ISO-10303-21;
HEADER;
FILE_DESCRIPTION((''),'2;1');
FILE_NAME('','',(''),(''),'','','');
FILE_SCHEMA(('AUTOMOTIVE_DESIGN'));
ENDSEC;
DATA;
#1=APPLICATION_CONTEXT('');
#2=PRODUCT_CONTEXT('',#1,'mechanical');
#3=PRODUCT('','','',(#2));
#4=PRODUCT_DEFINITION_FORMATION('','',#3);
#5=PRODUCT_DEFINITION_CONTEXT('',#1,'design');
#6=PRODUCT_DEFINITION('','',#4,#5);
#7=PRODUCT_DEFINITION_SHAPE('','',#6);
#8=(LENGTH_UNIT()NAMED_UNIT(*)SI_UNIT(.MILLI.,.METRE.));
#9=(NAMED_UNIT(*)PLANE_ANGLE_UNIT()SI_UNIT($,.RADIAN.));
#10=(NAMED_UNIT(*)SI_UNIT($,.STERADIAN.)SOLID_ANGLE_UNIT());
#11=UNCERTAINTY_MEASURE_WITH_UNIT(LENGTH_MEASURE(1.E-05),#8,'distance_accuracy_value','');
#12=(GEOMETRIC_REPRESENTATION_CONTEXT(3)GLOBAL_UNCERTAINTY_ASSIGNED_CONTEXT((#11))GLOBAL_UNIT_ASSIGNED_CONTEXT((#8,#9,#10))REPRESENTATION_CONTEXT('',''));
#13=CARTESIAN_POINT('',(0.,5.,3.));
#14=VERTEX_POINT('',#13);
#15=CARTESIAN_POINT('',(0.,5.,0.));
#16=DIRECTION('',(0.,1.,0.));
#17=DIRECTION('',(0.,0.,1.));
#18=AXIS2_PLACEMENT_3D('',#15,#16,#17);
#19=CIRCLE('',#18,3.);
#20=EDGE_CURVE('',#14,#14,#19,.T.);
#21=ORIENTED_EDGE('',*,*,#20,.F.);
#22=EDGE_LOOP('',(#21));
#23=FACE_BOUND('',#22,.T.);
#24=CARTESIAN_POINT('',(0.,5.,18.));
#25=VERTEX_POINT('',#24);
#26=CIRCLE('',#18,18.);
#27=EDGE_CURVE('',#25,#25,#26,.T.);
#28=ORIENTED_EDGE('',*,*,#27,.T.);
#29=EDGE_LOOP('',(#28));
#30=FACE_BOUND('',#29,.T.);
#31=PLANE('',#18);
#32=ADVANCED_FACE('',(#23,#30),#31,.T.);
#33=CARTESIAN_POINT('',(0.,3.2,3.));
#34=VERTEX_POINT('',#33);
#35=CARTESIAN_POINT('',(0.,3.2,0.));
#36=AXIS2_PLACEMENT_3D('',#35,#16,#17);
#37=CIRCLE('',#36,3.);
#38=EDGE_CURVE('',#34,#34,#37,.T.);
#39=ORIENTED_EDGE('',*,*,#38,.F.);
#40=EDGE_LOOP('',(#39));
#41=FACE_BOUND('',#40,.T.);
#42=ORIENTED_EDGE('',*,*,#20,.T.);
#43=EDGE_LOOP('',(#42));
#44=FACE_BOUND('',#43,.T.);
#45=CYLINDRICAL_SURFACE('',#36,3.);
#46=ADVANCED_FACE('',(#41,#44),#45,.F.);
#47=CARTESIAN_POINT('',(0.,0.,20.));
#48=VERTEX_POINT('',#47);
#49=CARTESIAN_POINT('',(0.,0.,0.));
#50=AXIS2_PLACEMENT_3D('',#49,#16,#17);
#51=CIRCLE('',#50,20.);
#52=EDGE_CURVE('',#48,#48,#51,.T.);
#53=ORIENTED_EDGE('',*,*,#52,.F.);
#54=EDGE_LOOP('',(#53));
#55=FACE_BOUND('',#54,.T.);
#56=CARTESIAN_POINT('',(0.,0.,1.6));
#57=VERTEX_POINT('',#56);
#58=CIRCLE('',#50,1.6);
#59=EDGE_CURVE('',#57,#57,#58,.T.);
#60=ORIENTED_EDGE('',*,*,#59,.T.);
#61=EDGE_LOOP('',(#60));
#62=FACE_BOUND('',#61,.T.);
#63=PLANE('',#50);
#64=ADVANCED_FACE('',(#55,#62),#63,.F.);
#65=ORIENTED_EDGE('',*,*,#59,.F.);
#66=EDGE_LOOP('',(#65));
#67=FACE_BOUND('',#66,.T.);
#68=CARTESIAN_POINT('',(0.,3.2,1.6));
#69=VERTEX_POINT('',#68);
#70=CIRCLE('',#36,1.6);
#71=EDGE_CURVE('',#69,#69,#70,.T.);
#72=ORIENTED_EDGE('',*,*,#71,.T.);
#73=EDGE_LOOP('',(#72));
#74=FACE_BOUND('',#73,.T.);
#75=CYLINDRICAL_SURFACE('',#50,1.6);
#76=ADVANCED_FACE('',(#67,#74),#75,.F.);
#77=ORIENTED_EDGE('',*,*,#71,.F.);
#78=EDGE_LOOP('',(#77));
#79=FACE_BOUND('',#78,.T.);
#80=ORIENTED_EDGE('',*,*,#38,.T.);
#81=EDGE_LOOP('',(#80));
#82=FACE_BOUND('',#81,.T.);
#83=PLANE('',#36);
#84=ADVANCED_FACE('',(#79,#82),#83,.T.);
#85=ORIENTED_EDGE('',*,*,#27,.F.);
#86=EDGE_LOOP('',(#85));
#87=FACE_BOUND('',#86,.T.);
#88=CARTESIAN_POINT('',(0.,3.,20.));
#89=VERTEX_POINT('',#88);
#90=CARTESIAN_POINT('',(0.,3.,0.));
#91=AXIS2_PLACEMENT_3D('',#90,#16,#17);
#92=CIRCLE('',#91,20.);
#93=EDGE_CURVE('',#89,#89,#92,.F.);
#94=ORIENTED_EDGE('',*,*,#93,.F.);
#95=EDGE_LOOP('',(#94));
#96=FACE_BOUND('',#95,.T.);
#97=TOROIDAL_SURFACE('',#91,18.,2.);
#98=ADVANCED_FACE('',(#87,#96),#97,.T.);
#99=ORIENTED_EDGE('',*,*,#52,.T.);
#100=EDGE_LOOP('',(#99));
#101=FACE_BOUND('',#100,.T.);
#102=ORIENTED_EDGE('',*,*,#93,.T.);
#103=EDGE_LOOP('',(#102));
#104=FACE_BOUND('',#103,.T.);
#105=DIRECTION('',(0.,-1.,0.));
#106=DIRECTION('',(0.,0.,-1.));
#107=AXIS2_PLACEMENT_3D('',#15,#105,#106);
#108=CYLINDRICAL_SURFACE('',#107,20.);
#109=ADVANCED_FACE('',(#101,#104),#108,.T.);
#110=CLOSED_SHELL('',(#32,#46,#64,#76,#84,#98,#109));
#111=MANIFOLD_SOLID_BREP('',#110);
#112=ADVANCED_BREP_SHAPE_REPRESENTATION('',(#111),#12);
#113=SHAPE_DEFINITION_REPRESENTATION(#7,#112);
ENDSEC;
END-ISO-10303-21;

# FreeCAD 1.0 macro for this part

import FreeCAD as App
import Part
import Sketcher
Q = App.Units.Quantity


def edges_at(feature, points):
    """Names of the edges that pass closest to the given points."""
    edges = feature.Shape.Edges
    near = lambda p: min(range(len(edges)), key=lambda i: edges[i].distToShape(Part.Vertex(*p))[0])
    return sorted({f"Edge{near(p) + 1}" for p in points})

doc = App.newDocument("Part")
params = doc.addObject("Spreadsheet::Sheet", "Params")
for row, (alias, value) in enumerate([
    ("sketch1_diameter", "40 mm"),
    ("pad1_length", "5 mm"),
    ("fillet_radius", "2 mm"),
    ("sketch2_diameter", "6 mm"),
    ("pocket1_length", "1.8 mm"),
    ("sketch3_diameter", "3.2 mm"),
], start=1):
    params.set(f"A{row}", alias)
    params.set(f"B{row}", "=" + value)
    params.setAlias(f"B{row}", alias)

body = doc.addObject("PartDesign::Body", "Body")

sketch1 = body.newObject("Sketcher::SketchObject", "Sketch")
sketch1.AttachmentSupport = (doc.getObject("XZ_Plane"), [""])
sketch1.MapMode = "FlatFace"
sketch1.addGeometry(Part.Circle(App.Vector(0, 0, 0), App.Vector(0, 0, 1), 20), False)
sketch1.addConstraint([
    Sketcher.Constraint("Coincident", 0, 3, -1, 1),
    Sketcher.Constraint("Diameter", 0, Q("40 mm")),
])
sketch1.setExpression("Constraints[1]", "Params.sketch1_diameter")
pad1 = body.newObject("PartDesign::Pad", "Pad")
pad1.Profile = sketch1
pad1.setExpression("Length", "Params.pad1_length")
pad1.Reversed = True
doc.recompute()

fillet = body.newObject("PartDesign::Fillet", "Fillet")
fillet.Base = (pad1, edges_at(pad1, [(0, 5, -20)]))
fillet.setExpression("Radius", "Params.fillet_radius")

sketch2 = body.newObject("Sketcher::SketchObject", "Sketch001")
sketch2.AttachmentSupport = (doc.getObject("XZ_Plane"), [""])
sketch2.MapMode = "FlatFace"
sketch2.AttachmentOffset = App.Placement(App.Vector(0, 0, -5), App.Rotation())
sketch2.addGeometry(Part.Circle(App.Vector(0, 0, 0), App.Vector(0, 0, 1), 3), False)
sketch2.addConstraint([
    Sketcher.Constraint("Coincident", 0, 3, -1, 1),
    Sketcher.Constraint("Diameter", 0, Q("6 mm")),
])
sketch2.setExpression("Constraints[1]", "Params.sketch2_diameter")
pocket1 = body.newObject("PartDesign::Pocket", "Pocket")
pocket1.Profile = sketch2
pocket1.setExpression("Length", "Params.pocket1_length")
pocket1.Reversed = True

sketch3 = body.newObject("Sketcher::SketchObject", "Sketch002")
sketch3.AttachmentSupport = (doc.getObject("XZ_Plane"), [""])
sketch3.MapMode = "FlatFace"
sketch3.AttachmentOffset = App.Placement(App.Vector(0, 0, -3.2), App.Rotation())
sketch3.addGeometry(Part.Circle(App.Vector(0, 0, 0), App.Vector(0, 0, 1), 1.6), False)
sketch3.addConstraint([
    Sketcher.Constraint("Coincident", 0, 3, -1, 1),
    Sketcher.Constraint("Diameter", 0, Q("3.2 mm")),
])
sketch3.setExpression("Constraints[1]", "Params.sketch3_diameter")
pocket2 = body.newObject("PartDesign::Pocket", "Pocket001")
pocket2.Profile = sketch3
pocket2.Type = "ThroughAll"
pocket2.Reversed = True

doc.recompute()
